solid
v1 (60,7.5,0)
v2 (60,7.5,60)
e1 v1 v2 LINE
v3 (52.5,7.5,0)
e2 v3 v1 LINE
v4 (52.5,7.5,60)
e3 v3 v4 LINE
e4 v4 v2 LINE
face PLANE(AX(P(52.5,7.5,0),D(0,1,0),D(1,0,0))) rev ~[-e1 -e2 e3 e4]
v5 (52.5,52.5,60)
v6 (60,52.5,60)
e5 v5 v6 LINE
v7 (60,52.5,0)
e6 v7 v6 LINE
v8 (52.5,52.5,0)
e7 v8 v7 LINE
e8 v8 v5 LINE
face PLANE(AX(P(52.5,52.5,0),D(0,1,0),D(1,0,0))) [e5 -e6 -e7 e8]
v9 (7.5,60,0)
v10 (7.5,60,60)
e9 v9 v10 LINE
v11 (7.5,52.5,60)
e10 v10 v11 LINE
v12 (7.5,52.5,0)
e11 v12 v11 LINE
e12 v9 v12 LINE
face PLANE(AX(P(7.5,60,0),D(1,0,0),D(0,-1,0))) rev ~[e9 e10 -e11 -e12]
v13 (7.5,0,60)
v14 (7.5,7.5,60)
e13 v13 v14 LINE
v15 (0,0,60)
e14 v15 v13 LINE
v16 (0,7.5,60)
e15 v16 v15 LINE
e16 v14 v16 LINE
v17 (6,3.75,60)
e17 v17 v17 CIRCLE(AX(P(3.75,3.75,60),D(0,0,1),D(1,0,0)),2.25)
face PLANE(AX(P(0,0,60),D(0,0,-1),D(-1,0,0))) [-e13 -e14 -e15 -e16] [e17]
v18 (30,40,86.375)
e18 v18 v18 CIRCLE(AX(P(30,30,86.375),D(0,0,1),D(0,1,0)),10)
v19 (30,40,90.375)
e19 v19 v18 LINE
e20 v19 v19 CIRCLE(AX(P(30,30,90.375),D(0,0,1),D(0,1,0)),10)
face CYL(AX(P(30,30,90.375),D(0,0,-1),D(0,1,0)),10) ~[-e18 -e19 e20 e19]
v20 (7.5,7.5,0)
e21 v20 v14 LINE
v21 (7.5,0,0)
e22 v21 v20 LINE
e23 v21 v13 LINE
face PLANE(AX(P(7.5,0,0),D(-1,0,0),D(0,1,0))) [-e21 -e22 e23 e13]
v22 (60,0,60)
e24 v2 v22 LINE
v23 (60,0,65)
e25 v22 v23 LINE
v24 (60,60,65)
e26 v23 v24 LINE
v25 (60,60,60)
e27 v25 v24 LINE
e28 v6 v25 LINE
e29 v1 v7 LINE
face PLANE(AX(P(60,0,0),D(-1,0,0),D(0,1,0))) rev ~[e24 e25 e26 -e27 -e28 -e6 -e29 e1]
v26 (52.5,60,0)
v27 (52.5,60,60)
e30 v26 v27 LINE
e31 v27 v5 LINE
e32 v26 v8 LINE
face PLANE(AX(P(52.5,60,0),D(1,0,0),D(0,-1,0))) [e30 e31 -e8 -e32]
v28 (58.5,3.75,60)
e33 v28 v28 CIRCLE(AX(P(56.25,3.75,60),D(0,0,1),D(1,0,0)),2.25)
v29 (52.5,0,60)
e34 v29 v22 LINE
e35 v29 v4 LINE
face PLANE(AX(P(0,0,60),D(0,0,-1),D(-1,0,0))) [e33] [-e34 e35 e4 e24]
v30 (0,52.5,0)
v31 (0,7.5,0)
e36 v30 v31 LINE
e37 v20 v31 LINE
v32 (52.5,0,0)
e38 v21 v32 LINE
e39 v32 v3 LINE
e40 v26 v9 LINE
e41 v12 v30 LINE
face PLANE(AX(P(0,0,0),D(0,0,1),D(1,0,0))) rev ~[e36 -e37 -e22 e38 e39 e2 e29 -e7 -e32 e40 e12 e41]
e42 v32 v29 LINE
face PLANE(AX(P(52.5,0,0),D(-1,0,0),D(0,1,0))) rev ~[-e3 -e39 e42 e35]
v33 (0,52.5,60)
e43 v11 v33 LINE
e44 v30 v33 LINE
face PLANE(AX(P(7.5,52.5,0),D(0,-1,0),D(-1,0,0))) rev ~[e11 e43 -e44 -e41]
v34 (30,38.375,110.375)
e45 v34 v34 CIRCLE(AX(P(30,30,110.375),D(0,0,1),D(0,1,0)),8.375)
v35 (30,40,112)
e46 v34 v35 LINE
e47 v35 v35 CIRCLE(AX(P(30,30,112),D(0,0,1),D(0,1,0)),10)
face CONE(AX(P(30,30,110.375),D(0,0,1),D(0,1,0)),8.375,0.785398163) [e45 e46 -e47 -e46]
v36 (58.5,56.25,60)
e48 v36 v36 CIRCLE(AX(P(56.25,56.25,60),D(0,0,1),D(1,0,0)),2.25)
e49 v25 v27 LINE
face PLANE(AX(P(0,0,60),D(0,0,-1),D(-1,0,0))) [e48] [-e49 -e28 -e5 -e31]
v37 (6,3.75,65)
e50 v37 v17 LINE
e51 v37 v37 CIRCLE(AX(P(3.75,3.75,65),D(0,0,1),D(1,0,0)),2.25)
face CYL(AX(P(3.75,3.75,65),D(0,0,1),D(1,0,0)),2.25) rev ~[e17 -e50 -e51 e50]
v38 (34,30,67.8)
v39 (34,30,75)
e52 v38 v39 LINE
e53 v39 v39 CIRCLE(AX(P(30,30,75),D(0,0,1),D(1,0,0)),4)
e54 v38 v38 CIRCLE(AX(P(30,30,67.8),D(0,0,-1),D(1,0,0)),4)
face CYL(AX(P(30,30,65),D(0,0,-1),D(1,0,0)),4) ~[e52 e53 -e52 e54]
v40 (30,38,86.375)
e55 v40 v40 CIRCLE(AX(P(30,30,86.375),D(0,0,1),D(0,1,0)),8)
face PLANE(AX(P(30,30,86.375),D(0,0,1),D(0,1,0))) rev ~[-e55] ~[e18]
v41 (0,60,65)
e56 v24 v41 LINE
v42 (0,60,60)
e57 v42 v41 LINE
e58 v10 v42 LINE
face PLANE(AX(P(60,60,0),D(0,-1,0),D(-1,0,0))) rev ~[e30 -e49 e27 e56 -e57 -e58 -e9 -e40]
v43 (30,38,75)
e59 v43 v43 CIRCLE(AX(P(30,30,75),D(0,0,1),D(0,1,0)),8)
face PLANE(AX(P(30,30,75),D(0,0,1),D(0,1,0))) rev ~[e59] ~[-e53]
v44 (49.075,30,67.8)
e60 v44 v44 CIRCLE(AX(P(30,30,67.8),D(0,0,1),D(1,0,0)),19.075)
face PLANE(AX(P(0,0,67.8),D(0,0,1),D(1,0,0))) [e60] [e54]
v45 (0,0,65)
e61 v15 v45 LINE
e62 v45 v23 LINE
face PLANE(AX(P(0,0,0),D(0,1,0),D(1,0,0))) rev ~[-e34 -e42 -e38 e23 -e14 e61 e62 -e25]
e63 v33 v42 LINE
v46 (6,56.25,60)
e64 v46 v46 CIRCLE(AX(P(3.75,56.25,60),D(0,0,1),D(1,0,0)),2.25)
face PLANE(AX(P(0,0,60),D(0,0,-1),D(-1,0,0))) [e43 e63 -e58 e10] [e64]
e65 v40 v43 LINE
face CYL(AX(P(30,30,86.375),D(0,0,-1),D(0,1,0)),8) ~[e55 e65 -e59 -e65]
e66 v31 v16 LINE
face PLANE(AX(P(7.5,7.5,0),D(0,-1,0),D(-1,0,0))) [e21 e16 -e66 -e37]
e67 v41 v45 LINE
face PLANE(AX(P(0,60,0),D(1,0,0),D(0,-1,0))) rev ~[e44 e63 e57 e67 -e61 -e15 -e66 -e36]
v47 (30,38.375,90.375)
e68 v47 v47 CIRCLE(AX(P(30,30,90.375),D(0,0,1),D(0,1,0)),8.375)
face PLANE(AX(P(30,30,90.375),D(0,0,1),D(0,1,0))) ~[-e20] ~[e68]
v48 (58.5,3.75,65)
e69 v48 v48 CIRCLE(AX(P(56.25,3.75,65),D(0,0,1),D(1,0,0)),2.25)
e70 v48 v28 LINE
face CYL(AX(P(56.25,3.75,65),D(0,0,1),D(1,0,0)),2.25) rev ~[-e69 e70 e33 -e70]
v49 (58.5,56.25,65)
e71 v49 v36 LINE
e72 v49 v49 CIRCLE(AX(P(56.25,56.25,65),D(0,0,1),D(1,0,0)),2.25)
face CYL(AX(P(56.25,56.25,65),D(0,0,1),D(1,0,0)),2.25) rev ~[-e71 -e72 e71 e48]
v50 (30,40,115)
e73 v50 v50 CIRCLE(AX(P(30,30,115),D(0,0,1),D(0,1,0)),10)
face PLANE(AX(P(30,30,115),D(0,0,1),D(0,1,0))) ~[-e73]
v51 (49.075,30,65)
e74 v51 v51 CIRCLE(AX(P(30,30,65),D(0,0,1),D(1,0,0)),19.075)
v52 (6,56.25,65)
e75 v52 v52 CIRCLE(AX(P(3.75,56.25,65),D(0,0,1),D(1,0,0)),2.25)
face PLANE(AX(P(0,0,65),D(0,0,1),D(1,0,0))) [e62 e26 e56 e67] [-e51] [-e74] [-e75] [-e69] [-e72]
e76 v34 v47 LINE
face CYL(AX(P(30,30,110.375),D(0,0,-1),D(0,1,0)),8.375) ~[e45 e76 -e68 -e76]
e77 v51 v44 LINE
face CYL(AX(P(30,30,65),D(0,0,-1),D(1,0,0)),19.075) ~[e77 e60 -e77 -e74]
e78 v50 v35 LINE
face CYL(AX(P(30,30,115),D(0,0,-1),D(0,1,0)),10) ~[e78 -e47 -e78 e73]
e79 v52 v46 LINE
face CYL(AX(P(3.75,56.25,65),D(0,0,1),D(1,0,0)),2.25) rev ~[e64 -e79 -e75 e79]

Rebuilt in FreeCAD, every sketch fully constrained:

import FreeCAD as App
import Part
import Sketcher

V = App.Vector
Q = App.Units.Quantity


def add_polygon(sketch, points):
    """Adds a closed chain of lines whose ends are joined by coincident constraints."""
    first, n = sketch.GeometryCount, len(points)
    for a, b in zip(points, points[1:] + points[:1]):
        sketch.addGeometry(Part.LineSegment(App.Vector(*a, 0), App.Vector(*b, 0)), False)
    for i in range(n):
        sketch.addConstraint(Sketcher.Constraint("Coincident", first + i, 2, first + (i + 1) % n, 1))

doc = App.newDocument("Part")
body = doc.addObject("PartDesign::Body", "Body")

sketch1 = body.newObject("Sketcher::SketchObject", "Sketch")
sketch1.AttachmentSupport = (doc.getObject("XY_Plane"), [""])
sketch1.MapMode = "FlatFace"
add_polygon(sketch1, [(0, 60), (0, 0), (60, 0), (60, 60)])
sketch1.addConstraint(Sketcher.Constraint("Vertical", 0))
sketch1.addConstraint(Sketcher.Constraint("Horizontal", 1))
sketch1.addConstraint(Sketcher.Constraint("Vertical", 2))
sketch1.addConstraint(Sketcher.Constraint("Horizontal", 3))
sketch1.addConstraint(Sketcher.Constraint("Coincident", 0, 2, -1, 1))
sketch1.addConstraint(Sketcher.Constraint("Equal", 3, 0))
sketch1.addConstraint(Sketcher.Constraint("DistanceX", 1, 1, 1, 2, Q("60 mm")))
pad1 = body.newObject("PartDesign::Pad", "Pad")
pad1.Profile = sketch1
pad1.Length = 65

sketch2 = body.newObject("Sketcher::SketchObject", "Sketch001")
sketch2.AttachmentSupport = (doc.getObject("XY_Plane"), [""])
sketch2.MapMode = "FlatFace"
sketch2.AttachmentOffset = App.Placement(V(0, 0, 65), App.Rotation())
sketch2.addGeometry(Part.Circle(V(30, 30, 0), V(0, 0, 1), 4), False)
sketch2.addConstraint(Sketcher.Constraint("Diameter", 0, Q("8 mm")))
sketch2.addConstraint(Sketcher.Constraint("DistanceX", -1, 1, 0, 3, Q("30 mm")))
sketch2.addConstraint(Sketcher.Constraint("DistanceY", -1, 1, 0, 3, Q("30 mm")))
pad2 = body.newObject("PartDesign::Pad", "Pad001")
pad2.Profile = sketch2
pad2.Length = 10

sketch3 = body.newObject("Sketcher::SketchObject", "Sketch002")
sketch3.AttachmentSupport = (doc.getObject("YZ_Plane"), [""])
sketch3.MapMode = "FlatFace"
sketch3.AttachmentOffset = App.Placement(V(0, 0, 30), App.Rotation())
add_polygon(sketch3, [(30, 75), (38, 75), (38, 86.4), (40, 86.4), (40, 90.4), (38.4, 90.4), (38.4, 110.4), (40, 112), (40, 115), (30, 115)])
sketch3.addGeometry(Part.LineSegment(V(30, 75, 0), V(30, 115, 0)), True)
sketch3.addConstraint(Sketcher.Constraint("Horizontal", 0))
sketch3.addConstraint(Sketcher.Constraint("Vertical", 1))
sketch3.addConstraint(Sketcher.Constraint("Horizontal", 2))
sketch3.addConstraint(Sketcher.Constraint("Vertical", 3))
sketch3.addConstraint(Sketcher.Constraint("Horizontal", 4))
sketch3.addConstraint(Sketcher.Constraint("Vertical", 5))
sketch3.addConstraint(Sketcher.Constraint("Vertical", 7))
sketch3.addConstraint(Sketcher.Constraint("Horizontal", 8))
sketch3.addConstraint(Sketcher.Constraint("Vertical", 9))
sketch3.addConstraint(Sketcher.Constraint("Vertical", 10))
sketch3.addConstraint(Sketcher.Constraint("Coincident", 10, 1, 9, 2))
sketch3.addConstraint(Sketcher.Constraint("Horizontal", 7, 2, 10, 2))
sketch3.addConstraint(Sketcher.Constraint("Vertical", 3, 2, 6, 2))
sketch3.addConstraint(Sketcher.Constraint("DistanceX", 2, 1, 2, 2, Q("2 mm")))
sketch3.addConstraint(Sketcher.Constraint("DistanceX", 8, 2, 8, 1, Q("10 mm")))
sketch3.addConstraint(Sketcher.Constraint("DistanceY", 3, 1, 3, 2, Q("4 mm")))
sketch3.addConstraint(Sketcher.Constraint("DistanceY", 5, 1, 5, 2, Q("20 mm")))
sketch3.addConstraint(Sketcher.Constraint("DistanceY", 7, 1, 7, 2, Q("3 mm")))
sketch3.addConstraint(Sketcher.Constraint("DistanceY", 9, 2, 9, 1, Q("40 mm")))
sketch3.addConstraint(Sketcher.Constraint("DistanceX", -1, 1, 2, 2, Q("40 mm")))
sketch3.addConstraint(Sketcher.Constraint("DistanceX", 4, 2, 4, 1, Q("1.625 mm")))
sketch3.addConstraint(Sketcher.Constraint("Angle", 6, Q("45 deg")))
sketch3.addConstraint(Sketcher.Constraint("DistanceY", -1, 1, 0, 2, Q("75 mm")))
revolution = body.newObject("PartDesign::Revolution", "Revolution")
revolution.Profile = sketch3
revolution.ReferenceAxis = (sketch3, ["Axis0"])
revolution.Angle = 360

sketch4 = body.newObject("Sketcher::SketchObject", "Sketch003")
sketch4.AttachmentSupport = (doc.getObject("XY_Plane"), [""])
sketch4.MapMode = "FlatFace"
add_polygon(sketch4, [(60, 0), (52, 0), (52, 8), (60, 8)])
add_polygon(sketch4, [(8, 0), (0, 0), (0, 8), (8, 8)])
add_polygon(sketch4, [(0, 60), (8, 60), (8, 52), (0, 52)])
add_polygon(sketch4, [(52, 60), (60, 60), (60, 52), (52, 52)])
sketch4.addConstraint(Sketcher.Constraint("Horizontal", 0))
sketch4.addConstraint(Sketcher.Constraint("Vertical", 1))
sketch4.addConstraint(Sketcher.Constraint("Horizontal", 2))
sketch4.addConstraint(Sketcher.Constraint("Vertical", 3))
sketch4.addConstraint(Sketcher.Constraint("Horizontal", 4))
sketch4.addConstraint(Sketcher.Constraint("Vertical", 5))
sketch4.addConstraint(Sketcher.Constraint("Horizontal", 6))
sketch4.addConstraint(Sketcher.Constraint("Vertical", 7))
sketch4.addConstraint(Sketcher.Constraint("Horizontal", 8))
sketch4.addConstraint(Sketcher.Constraint("Vertical", 9))
sketch4.addConstraint(Sketcher.Constraint("Horizontal", 10))
sketch4.addConstraint(Sketcher.Constraint("Vertical", 11))
sketch4.addConstraint(Sketcher.Constraint("Horizontal", 12))
sketch4.addConstraint(Sketcher.Constraint("Vertical", 13))
sketch4.addConstraint(Sketcher.Constraint("Horizontal", 14))
sketch4.addConstraint(Sketcher.Constraint("Vertical", 15))
sketch4.addConstraint(Sketcher.Constraint("Coincident", 4, 2, -1, 1))
sketch4.addConstraint(Sketcher.Constraint("PointOnObject", 0, 2, -1))
sketch4.addConstraint(Sketcher.Constraint("PointOnObject", 10, 2, -2))
sketch4.addConstraint(Sketcher.Constraint("Horizontal", 2, 2, 5, 2))
sketch4.addConstraint(Sketcher.Constraint("Horizontal", 11, 2, 12, 2))
sketch4.addConstraint(Sketcher.Constraint("Horizontal", 10, 2, 13, 2))
sketch4.addConstraint(Sketcher.Constraint("Vertical", 7, 2, 8, 2))
sketch4.addConstraint(Sketcher.Constraint("Vertical", 3, 2, 12, 2))
sketch4.addConstraint(Sketcher.Constraint("Vertical", 1, 2, 14, 2))
sketch4.addConstraint(Sketcher.Constraint("Equal", 2, 4))
sketch4.addConstraint(Sketcher.Constraint("Equal", 14, 1))
sketch4.addConstraint(Sketcher.Constraint("Equal", 7, 9))
sketch4.addConstraint(Sketcher.Constraint("DistanceX", 0, 2, 0, 1, Q("7.5 mm")))
sketch4.addConstraint(Sketcher.Constraint("DistanceX", -1, 1, 2, 2, Q("60 mm")))
sketch4.addConstraint(Sketcher.Constraint("DistanceY", -1, 1, 8, 2, Q("60 mm")))
pocket1 = body.newObject("PartDesign::Pocket", "Pocket")
pocket1.Profile = sketch4
pocket1.Length = 60
pocket1.Reversed = True

sketch5 = body.newObject("Sketcher::SketchObject", "Sketch004")
sketch5.AttachmentSupport = (doc.getObject("XY_Plane"), [""])
sketch5.MapMode = "FlatFace"
sketch5.AttachmentOffset = App.Placement(V(0, 0, 65), App.Rotation())
sketch5.addGeometry(Part.Circle(V(3.8, 3.8, 0), V(0, 0, 1), 2.2), False)
sketch5.addGeometry(Part.Circle(V(56.2, 3.8, 0), V(0, 0, 1), 2.2), False)
sketch5.addGeometry(Part.Circle(V(56.2, 56.2, 0), V(0, 0, 1), 2.2), False)
sketch5.addGeometry(Part.Circle(V(3.8, 56.2, 0), V(0, 0, 1), 2.2), False)
sketch5.addConstraint(Sketcher.Constraint("Equal", 0, 1))
sketch5.addConstraint(Sketcher.Constraint("Equal", 1, 2))
sketch5.addConstraint(Sketcher.Constraint("Equal", 2, 3))
sketch5.addConstraint(Sketcher.Constraint("Horizontal", 0, 3, 1, 3))
sketch5.addConstraint(Sketcher.Constraint("Horizontal", 2, 3, 3, 3))
sketch5.addConstraint(Sketcher.Constraint("Vertical", 1, 3, 2, 3))
sketch5.addConstraint(Sketcher.Constraint("Vertical", 0, 3, 3, 3))
sketch5.addConstraint(Sketcher.Constraint("Diameter", 0, Q("4.5 mm")))
sketch5.addConstraint(Sketcher.Constraint("DistanceX", 0, 3, 1, 3, Q("52.5 mm")))
sketch5.addConstraint(Sketcher.Constraint("DistanceY", 1, 3, 2, 3, Q("52.5 mm")))
sketch5.addConstraint(Sketcher.Constraint("DistanceX", -1, 1, 0, 3, Q("3.75 mm")))
sketch5.addConstraint(Sketcher.Constraint("DistanceY", -1, 1, 0, 3, Q("3.75 mm")))
pocket2 = body.newObject("PartDesign::Pocket", "Pocket001")
pocket2.Profile = sketch5
pocket2.Length = 5

sketch6 = body.newObject("Sketcher::SketchObject", "Sketch005")
sketch6.AttachmentSupport = (doc.getObject("XY_Plane"), [""])
sketch6.MapMode = "FlatFace"
sketch6.AttachmentOffset = App.Placement(V(0, 0, 65), App.Rotation())
sketch6.addGeometry(Part.Circle(V(30, 30, 0), V(0, 0, 1), 19), False)
sketch6.addConstraint(Sketcher.Constraint("Diameter", 0, Q("38.15 mm")))
sketch6.addConstraint(Sketcher.Constraint("DistanceX", -1, 1, 0, 3, Q("30 mm")))
sketch6.addConstraint(Sketcher.Constraint("DistanceY", -1, 1, 0, 3, Q("30 mm")))
pad3 = body.newObject("PartDesign::Pad", "Pad002")
pad3.Profile = sketch6
pad3.Length = 2.8

doc.recompute()
